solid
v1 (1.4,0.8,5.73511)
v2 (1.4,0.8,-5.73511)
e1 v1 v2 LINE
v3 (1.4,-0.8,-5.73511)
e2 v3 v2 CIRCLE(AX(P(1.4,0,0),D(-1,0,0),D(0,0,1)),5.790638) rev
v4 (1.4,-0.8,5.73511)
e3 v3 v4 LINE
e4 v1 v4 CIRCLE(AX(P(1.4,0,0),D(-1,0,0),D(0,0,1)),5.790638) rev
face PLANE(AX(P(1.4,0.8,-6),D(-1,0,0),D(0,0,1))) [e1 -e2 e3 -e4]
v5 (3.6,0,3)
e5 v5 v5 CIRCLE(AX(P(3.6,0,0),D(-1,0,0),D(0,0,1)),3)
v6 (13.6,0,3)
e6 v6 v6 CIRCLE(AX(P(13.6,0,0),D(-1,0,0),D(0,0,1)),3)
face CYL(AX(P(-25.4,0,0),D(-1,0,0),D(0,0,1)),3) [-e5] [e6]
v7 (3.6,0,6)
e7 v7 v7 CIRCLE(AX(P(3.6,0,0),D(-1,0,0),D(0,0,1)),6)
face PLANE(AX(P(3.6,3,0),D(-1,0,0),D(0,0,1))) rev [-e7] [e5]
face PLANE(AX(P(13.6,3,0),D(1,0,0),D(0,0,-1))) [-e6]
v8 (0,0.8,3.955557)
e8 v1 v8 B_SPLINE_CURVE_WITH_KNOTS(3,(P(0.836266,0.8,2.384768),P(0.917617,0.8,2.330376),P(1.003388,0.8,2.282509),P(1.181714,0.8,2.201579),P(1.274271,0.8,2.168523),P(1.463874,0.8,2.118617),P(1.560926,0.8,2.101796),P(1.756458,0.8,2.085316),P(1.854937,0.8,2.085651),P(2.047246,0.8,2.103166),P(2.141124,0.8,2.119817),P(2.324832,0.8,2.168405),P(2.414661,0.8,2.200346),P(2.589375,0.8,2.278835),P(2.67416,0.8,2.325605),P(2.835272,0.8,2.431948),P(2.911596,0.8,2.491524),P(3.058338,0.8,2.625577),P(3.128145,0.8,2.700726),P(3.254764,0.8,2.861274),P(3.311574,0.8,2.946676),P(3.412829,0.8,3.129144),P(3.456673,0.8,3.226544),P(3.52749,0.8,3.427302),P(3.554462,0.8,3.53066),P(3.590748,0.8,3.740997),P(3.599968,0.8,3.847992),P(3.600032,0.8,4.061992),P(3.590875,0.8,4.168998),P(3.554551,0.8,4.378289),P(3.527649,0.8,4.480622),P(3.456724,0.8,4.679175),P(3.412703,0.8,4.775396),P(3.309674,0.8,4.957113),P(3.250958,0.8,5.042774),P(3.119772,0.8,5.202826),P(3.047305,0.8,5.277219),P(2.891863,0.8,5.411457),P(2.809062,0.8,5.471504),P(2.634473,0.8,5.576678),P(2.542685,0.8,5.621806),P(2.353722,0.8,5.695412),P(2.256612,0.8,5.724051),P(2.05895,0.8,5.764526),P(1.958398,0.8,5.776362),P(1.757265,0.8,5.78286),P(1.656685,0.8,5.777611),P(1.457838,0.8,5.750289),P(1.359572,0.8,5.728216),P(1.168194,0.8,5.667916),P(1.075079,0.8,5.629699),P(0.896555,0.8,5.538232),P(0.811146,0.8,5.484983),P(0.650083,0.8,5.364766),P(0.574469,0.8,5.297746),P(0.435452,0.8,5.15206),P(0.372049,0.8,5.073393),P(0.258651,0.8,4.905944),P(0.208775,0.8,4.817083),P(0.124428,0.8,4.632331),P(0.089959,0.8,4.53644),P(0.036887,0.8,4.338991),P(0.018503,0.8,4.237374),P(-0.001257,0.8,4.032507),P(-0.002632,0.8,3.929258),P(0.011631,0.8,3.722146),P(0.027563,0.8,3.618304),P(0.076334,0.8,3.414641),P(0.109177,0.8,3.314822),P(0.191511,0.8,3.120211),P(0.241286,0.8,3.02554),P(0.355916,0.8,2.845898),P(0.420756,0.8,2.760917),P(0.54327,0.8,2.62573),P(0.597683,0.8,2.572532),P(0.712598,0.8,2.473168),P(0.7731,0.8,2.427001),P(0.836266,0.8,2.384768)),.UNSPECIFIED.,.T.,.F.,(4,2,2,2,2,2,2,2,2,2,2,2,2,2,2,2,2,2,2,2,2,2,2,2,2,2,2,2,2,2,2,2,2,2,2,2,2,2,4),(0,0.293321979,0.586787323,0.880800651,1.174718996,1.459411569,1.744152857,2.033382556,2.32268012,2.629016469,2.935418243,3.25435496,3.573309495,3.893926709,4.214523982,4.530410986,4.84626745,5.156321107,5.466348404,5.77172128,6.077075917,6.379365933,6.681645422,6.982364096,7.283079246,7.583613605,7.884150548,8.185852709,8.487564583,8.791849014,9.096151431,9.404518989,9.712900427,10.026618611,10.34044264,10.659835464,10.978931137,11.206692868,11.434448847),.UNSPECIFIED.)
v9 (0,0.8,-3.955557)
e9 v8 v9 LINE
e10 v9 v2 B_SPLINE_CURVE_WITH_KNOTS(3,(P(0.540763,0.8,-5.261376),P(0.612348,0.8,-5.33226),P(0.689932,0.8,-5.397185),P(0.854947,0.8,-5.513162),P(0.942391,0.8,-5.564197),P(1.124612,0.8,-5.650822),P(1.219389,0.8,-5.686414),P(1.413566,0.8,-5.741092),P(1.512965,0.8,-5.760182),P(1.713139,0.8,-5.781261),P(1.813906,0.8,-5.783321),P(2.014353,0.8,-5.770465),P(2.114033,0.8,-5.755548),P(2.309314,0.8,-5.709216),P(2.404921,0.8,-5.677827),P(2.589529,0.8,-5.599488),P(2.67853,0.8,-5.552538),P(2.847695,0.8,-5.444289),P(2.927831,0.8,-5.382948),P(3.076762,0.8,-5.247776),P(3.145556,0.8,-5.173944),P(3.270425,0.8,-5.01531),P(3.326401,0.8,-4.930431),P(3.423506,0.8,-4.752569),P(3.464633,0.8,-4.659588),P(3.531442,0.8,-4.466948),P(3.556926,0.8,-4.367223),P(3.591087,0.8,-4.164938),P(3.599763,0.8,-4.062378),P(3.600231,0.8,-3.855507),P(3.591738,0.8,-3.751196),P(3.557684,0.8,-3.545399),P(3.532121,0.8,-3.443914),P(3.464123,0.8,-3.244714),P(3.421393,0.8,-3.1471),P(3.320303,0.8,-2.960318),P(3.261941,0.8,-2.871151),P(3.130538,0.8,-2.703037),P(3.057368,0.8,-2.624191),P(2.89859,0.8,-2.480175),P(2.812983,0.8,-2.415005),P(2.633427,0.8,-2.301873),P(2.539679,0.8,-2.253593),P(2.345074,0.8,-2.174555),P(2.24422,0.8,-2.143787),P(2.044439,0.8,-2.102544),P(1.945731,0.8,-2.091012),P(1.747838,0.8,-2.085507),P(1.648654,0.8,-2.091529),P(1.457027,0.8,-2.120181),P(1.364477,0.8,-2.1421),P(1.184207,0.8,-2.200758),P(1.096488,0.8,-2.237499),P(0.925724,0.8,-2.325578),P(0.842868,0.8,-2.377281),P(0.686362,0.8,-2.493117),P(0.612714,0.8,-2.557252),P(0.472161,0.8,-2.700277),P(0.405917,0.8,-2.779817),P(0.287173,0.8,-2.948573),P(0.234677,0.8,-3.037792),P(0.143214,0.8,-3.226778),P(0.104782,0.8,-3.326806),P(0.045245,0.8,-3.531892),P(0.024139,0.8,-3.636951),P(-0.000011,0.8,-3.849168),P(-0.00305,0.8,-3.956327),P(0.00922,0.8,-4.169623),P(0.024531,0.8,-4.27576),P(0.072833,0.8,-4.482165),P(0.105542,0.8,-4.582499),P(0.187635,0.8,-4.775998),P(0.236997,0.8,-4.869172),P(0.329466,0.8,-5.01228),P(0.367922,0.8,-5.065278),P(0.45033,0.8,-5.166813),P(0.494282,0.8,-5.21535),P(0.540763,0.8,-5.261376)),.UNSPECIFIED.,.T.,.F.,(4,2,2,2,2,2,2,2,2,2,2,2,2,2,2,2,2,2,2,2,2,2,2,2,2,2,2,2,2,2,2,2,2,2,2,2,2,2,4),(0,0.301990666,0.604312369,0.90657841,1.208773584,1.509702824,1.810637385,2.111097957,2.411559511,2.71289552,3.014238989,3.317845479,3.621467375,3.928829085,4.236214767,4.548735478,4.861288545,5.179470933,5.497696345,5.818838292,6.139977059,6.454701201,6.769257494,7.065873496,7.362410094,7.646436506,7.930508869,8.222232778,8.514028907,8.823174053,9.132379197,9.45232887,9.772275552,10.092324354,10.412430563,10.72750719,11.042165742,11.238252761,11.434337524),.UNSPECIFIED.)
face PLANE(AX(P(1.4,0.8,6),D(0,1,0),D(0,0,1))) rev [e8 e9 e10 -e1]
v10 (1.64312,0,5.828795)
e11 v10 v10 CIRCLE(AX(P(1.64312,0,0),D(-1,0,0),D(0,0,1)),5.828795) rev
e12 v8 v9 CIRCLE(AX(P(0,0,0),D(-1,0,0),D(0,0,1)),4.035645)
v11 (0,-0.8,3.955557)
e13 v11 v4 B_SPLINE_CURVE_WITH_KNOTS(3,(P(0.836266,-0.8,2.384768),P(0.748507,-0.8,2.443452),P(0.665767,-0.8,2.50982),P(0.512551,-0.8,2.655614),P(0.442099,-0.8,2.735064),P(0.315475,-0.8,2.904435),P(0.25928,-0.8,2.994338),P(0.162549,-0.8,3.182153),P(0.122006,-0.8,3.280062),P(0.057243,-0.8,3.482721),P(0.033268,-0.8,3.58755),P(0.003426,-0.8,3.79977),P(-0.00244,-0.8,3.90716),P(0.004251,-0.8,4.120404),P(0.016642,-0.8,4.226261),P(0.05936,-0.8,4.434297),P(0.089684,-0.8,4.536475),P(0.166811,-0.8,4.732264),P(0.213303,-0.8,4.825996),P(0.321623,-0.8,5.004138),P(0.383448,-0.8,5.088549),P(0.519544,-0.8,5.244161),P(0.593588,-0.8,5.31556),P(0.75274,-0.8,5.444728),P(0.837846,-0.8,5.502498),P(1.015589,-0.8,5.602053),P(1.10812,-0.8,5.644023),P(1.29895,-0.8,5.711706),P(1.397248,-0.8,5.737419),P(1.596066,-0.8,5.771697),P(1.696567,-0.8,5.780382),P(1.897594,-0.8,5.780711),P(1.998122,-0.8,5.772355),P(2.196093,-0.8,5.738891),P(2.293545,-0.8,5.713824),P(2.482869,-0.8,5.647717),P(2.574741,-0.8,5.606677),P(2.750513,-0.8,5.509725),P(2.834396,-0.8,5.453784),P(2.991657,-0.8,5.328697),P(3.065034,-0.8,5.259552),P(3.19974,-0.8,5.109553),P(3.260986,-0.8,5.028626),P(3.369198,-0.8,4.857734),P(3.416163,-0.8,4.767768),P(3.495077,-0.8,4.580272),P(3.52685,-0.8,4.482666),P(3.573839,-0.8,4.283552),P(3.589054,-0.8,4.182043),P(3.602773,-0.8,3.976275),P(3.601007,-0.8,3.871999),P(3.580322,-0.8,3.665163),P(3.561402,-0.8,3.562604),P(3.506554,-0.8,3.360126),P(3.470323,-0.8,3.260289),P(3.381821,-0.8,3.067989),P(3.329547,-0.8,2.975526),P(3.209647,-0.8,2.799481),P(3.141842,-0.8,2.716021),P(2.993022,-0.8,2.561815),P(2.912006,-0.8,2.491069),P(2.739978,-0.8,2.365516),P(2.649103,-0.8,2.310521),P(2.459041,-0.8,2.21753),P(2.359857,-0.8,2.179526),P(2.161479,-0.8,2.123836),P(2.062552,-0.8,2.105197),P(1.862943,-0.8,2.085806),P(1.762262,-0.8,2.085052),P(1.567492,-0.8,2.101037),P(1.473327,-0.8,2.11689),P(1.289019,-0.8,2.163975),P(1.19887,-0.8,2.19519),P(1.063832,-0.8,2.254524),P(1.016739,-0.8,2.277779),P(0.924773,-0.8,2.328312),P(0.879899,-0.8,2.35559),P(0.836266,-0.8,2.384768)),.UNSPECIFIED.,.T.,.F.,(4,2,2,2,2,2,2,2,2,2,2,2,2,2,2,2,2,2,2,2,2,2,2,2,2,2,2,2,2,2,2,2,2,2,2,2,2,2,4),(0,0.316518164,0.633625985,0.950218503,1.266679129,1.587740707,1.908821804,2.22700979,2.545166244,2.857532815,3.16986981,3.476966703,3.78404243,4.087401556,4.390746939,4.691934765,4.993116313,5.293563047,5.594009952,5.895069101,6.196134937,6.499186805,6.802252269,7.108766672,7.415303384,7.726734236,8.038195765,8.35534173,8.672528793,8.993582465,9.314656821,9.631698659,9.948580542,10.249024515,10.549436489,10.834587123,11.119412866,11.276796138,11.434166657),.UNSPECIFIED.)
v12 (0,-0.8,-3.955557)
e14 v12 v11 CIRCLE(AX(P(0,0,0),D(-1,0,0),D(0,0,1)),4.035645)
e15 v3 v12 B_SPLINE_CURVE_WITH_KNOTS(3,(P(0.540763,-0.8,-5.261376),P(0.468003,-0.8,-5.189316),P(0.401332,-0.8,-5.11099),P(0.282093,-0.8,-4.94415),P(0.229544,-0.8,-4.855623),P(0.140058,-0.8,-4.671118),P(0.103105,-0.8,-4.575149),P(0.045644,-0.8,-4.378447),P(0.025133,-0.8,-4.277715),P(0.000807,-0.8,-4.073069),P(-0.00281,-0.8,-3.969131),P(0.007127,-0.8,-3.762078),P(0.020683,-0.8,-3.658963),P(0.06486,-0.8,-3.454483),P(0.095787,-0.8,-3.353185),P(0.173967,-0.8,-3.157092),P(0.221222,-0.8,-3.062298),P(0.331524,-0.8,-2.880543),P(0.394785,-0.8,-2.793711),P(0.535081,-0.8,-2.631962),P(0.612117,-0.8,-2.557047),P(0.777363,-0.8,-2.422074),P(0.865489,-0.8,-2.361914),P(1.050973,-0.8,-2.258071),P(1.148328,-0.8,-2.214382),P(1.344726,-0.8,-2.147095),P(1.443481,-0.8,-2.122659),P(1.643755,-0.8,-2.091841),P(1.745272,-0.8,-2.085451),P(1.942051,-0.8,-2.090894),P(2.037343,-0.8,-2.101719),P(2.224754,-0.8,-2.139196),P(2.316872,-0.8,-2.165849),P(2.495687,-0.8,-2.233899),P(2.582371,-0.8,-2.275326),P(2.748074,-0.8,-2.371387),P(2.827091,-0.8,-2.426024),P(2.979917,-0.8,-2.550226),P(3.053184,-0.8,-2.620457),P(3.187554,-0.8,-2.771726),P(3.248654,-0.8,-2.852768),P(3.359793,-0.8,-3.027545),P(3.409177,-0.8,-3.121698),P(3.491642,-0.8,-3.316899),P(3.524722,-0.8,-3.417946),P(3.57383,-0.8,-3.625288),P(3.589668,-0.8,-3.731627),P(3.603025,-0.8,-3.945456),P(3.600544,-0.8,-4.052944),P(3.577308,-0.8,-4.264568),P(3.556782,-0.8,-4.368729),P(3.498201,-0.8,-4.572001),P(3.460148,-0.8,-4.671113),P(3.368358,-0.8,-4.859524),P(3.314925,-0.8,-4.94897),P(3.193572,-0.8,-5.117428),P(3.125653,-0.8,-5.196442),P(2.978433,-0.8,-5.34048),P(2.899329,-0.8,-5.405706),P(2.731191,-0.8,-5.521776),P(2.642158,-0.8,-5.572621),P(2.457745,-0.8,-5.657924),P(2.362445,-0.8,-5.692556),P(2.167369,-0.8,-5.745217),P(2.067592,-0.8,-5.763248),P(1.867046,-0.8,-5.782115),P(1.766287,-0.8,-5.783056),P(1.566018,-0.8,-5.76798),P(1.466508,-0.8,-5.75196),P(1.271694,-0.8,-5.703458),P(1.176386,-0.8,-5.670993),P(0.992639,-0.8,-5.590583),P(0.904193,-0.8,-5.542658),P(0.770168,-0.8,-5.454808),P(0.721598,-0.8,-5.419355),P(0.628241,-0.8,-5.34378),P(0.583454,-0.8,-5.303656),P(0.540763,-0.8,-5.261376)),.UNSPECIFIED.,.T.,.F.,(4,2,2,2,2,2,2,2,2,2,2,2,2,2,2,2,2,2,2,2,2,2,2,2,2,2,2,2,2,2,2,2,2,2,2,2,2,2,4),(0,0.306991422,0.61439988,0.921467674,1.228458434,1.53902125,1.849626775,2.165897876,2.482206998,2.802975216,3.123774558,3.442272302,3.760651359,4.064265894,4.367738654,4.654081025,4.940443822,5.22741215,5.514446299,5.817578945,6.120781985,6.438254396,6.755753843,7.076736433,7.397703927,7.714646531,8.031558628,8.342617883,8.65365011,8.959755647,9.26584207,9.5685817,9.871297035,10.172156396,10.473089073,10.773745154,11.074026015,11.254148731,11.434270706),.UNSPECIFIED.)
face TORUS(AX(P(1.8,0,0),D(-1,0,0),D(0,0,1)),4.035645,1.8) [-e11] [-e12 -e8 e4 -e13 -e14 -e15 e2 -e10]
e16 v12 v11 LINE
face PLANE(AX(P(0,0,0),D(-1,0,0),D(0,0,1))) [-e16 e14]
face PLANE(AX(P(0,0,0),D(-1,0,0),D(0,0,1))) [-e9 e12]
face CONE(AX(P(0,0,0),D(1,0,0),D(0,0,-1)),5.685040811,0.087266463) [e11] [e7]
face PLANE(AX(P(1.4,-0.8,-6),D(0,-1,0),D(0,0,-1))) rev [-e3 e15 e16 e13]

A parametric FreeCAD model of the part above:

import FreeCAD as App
import Part
import Sketcher

V = App.Vector
Q = App.Units.Quantity


def edges_at(feature, points):
    """Names of the edges that pass closest to the given points."""
    edges = feature.Shape.Edges
    near = lambda p: min(range(len(edges)), key=lambda i: edges[i].distToShape(Part.Vertex(*p))[0])
    return sorted({f"Edge{near(p) + 1}" for p in points})

doc = App.newDocument("Part")
body = doc.addObject("PartDesign::Body", "Body")

sketch1 = doc.addObject("Sketcher::SketchObject", "Sketch")
body.addObject(sketch1)
sketch1.AttachmentSupport = (doc.XY_Plane, [""])
sketch1.MapMode = "FlatFace"
sketch1.addGeometry([
    Part.LineSegment(V(3.6, 3, 0), V(3.6, 6, 0)),
    Part.LineSegment(V(3.6, 6, 0), V(0, 5.7, 0)),
    Part.LineSegment(V(0, 5.7, 0), V(0, 0, 0)),
    Part.LineSegment(V(0, 0, 0), V(13.6, 0, 0)),
    Part.LineSegment(V(13.6, 0, 0), V(13.6, 3, 0)),
    Part.LineSegment(V(13.6, 3, 0), V(3.6, 3, 0)),
], False)
sketch1.addConstraint([
    Sketcher.Constraint("Coincident", 0, 2, 1, 1),
    Sketcher.Constraint("Coincident", 1, 2, 2, 1),
    Sketcher.Constraint("Coincident", 2, 2, 3, 1),
    Sketcher.Constraint("Coincident", 3, 2, 4, 1),
    Sketcher.Constraint("Coincident", 4, 2, 5, 1),
    Sketcher.Constraint("Coincident", 5, 2, 0, 1),
    Sketcher.Constraint("Vertical", 0),
    Sketcher.Constraint("Vertical", 2),
    Sketcher.Constraint("Horizontal", 3),
    Sketcher.Constraint("Vertical", 4),
    Sketcher.Constraint("Horizontal", 5),
    Sketcher.Constraint("Coincident", 2, 2, -1, 1),
    Sketcher.Constraint("Equal", 0, 4),
    Sketcher.Constraint("DistanceX", 5, 2, 5, 1, 10.0),
    Sketcher.Constraint("DistanceY", 0, 1, 0, 2, 3.0),
    Sketcher.Constraint("Angle", 1, Q("-175 deg")),
    Sketcher.Constraint("DistanceX", 3, 1, 3, 2, 13.6),
])
revolution = doc.addObject("PartDesign::Revolution", "Revolution")
body.addObject(revolution)
revolution.Profile = sketch1
revolution.ReferenceAxis = (sketch1, ["H_Axis"])
revolution.Angle = 360
doc.recompute()

fillet = doc.addObject("PartDesign::Fillet", "Fillet")
body.addObject(fillet)
fillet.Base = (revolution, edges_at(revolution, [(0, 0, -5.685)]))
fillet.Radius = 1.8

sketch2 = doc.addObject("Sketcher::SketchObject", "Sketch001")
body.addObject(sketch2)
sketch2.AttachmentSupport = (doc.YZ_Plane, [""])
sketch2.MapMode = "FlatFace"
sketch2.addGeometry([
    Part.LineSegment(V(0.8, 6, 0), V(-0.8, 6, 0)),
    Part.LineSegment(V(-0.8, 6, 0), V(-0.8, -6, 0)),
    Part.LineSegment(V(-0.8, -6, 0), V(0.8, -6, 0)),
    Part.LineSegment(V(0.8, -6, 0), V(0.8, 6, 0)),
], False)
sketch2.addConstraint([
    Sketcher.Constraint("Coincident", 0, 2, 1, 1),
    Sketcher.Constraint("Coincident", 1, 2, 2, 1),
    Sketcher.Constraint("Coincident", 2, 2, 3, 1),
    Sketcher.Constraint("Coincident", 3, 2, 0, 1),
    Sketcher.Constraint("Horizontal", 0),
    Sketcher.Constraint("Vertical", 1),
    Sketcher.Constraint("Horizontal", 2),
    Sketcher.Constraint("Vertical", 3),
    Sketcher.Constraint("Symmetric", 0, 2, 2, 2, -1, 1),
    Sketcher.Constraint("DistanceY", 1, 2, 1, 1, 12.0),
    Sketcher.Constraint("DistanceX", 0, 2, 0, 1, 1.6),
])
pocket1 = doc.addObject("PartDesign::Pocket", "Pocket")
body.addObject(pocket1)
pocket1.Profile = sketch2
pocket1.Length = 1.4
pocket1.Reversed = True

doc.recompute()
